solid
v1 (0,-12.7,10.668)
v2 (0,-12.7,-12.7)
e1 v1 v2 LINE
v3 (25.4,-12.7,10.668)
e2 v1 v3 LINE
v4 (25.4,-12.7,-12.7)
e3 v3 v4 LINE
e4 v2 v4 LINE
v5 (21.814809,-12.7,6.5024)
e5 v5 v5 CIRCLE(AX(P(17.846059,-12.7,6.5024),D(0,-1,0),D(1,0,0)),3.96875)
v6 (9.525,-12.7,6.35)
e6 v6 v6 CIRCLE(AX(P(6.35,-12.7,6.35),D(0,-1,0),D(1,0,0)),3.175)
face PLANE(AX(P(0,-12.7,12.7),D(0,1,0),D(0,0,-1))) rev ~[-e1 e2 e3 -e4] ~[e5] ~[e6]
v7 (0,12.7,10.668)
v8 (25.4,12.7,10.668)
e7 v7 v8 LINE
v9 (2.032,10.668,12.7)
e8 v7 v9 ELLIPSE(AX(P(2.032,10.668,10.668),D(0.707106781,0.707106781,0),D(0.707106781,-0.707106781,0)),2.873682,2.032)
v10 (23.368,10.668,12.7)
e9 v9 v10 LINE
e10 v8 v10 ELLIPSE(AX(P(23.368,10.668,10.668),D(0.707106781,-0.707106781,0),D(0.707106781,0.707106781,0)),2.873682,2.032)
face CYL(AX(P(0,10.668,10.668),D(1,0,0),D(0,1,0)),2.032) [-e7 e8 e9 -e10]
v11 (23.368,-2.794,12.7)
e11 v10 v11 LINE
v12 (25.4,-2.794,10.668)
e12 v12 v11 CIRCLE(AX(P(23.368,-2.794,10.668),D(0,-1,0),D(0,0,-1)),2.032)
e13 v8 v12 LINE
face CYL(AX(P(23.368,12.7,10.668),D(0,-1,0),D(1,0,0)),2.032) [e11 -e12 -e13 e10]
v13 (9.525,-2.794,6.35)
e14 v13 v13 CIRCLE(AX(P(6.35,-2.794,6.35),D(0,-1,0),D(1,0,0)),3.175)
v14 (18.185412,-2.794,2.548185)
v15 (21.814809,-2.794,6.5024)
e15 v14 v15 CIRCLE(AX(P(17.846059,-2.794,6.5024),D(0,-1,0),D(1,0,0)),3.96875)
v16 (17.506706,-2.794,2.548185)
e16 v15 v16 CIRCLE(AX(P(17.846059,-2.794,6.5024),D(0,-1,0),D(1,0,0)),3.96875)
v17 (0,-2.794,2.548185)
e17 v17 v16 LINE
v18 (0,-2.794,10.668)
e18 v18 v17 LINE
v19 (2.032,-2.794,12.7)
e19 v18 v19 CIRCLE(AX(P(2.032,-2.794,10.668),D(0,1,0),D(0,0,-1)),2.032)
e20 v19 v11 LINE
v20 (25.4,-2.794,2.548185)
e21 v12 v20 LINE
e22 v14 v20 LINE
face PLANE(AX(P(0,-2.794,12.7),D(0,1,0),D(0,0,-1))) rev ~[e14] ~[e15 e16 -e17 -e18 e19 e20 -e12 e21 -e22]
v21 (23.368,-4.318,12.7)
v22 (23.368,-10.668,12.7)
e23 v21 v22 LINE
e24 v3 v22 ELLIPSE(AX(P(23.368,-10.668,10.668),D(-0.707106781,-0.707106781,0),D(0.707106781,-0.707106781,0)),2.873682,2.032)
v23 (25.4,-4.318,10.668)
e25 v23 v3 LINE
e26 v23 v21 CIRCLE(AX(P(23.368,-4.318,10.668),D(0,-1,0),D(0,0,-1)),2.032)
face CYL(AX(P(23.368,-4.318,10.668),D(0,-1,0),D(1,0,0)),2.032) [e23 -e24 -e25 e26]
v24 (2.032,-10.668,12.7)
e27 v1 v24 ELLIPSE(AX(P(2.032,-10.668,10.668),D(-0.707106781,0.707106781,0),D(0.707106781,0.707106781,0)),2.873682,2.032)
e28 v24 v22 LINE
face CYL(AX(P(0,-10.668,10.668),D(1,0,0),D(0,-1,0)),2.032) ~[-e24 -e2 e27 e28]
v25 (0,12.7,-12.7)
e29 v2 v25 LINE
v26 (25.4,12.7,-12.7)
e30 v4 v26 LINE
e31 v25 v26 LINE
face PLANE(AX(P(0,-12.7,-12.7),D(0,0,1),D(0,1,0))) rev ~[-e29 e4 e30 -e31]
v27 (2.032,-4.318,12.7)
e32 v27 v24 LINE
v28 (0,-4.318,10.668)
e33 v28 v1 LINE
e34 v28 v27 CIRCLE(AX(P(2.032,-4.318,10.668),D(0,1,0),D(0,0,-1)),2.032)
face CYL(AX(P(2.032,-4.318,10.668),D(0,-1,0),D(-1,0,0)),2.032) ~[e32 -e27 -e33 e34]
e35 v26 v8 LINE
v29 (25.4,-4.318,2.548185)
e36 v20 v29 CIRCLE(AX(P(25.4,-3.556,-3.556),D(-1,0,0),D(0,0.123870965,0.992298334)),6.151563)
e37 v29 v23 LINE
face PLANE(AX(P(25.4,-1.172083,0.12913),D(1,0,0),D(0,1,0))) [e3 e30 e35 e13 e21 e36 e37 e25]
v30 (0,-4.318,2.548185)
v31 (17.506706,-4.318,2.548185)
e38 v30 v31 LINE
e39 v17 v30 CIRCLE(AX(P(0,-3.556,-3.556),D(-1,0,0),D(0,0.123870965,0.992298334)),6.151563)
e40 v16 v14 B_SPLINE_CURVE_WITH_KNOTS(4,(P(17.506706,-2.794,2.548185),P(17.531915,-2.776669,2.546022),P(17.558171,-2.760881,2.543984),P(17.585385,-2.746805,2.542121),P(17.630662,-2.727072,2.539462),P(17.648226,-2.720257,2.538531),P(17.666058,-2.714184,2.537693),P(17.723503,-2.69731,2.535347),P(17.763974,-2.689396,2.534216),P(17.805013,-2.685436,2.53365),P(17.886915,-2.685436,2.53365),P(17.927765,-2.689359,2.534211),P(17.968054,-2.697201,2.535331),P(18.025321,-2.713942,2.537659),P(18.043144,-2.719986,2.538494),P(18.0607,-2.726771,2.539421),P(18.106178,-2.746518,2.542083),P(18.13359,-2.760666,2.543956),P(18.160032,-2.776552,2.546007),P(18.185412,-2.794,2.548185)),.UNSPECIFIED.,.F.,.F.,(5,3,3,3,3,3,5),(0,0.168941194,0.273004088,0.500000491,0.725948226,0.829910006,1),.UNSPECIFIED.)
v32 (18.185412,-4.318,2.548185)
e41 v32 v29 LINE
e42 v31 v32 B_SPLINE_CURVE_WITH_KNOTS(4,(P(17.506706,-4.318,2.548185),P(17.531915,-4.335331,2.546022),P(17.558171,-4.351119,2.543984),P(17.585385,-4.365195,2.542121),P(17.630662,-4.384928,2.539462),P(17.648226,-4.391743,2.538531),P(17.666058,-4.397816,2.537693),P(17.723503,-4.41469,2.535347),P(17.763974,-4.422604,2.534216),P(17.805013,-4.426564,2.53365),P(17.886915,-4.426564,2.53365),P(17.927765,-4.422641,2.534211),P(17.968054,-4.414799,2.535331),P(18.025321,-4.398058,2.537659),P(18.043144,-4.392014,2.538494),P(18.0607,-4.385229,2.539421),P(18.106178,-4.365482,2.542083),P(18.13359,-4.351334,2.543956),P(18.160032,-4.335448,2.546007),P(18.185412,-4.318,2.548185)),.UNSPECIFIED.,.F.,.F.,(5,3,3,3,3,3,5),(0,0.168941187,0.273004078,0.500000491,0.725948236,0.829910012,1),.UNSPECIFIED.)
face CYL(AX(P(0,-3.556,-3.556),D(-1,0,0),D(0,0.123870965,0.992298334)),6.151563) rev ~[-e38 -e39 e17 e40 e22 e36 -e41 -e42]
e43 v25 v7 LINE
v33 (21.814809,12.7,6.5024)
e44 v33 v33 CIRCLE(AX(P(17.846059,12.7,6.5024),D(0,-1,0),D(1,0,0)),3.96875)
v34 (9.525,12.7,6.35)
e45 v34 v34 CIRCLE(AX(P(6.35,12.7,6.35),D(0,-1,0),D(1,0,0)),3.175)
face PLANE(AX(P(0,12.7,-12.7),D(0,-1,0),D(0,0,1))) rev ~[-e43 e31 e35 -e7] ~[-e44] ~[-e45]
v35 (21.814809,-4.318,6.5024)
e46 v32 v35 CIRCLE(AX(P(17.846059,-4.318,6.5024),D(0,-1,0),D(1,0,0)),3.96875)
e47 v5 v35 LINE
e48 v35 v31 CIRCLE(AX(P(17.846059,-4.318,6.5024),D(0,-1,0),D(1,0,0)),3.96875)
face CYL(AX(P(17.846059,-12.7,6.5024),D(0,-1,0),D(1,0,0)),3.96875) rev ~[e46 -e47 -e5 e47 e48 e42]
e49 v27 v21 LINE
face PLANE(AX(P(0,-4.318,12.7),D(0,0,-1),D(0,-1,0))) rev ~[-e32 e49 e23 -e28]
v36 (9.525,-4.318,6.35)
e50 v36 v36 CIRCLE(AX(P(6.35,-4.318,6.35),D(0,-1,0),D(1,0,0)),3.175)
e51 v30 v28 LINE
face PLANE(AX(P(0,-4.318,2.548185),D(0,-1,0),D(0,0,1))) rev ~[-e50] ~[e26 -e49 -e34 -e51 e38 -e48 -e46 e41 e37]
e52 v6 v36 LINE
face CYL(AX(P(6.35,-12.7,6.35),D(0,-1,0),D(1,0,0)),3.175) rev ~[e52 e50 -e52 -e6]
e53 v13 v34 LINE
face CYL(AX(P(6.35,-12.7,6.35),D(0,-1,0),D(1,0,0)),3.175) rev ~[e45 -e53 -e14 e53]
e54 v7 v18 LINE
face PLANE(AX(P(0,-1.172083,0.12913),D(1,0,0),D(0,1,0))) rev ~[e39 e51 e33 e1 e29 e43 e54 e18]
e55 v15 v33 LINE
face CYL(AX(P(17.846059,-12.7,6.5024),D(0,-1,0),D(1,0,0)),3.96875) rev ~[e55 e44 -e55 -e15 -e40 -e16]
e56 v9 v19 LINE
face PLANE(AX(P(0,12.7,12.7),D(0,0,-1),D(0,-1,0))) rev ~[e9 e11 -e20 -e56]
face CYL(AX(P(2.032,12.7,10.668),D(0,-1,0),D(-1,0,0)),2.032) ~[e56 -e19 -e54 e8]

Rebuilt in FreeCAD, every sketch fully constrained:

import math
import FreeCAD as App
import Part
import Sketcher
Q = App.Units.Quantity


def edges_at(feature, points):
    """Names of the edges that pass closest to the given points."""
    edges = feature.Shape.Edges
    near = lambda p: min(range(len(edges)), key=lambda i: edges[i].distToShape(Part.Vertex(*p))[0])
    return sorted({f"Edge{near(p) + 1}" for p in points})

doc = App.newDocument("Part")
params = doc.addObject("Spreadsheet::Sheet", "Params")
for row, (alias, value) in enumerate([
    ("sketch1_width", "1 in"),
    ("sketch1_width2", "0.61 in"),
    ("sketch1_width3", "0.33 in"),
    ("pad1_length", "1 in"),
    ("sketch2_diameter", "0.25 in"),
    ("sketch2_diameter2", "0.3125 in"),
    ("fillet_radius", "0.08 in"),
], start=1):
    params.set(f"A{row}", alias)
    params.set(f"B{row}", "=" + value)
    params.setAlias(f"B{row}", alias)

body = doc.addObject("PartDesign::Body", "Body")

# Sketch on YZ plane
sketch1 = body.newObject("Sketcher::SketchObject", "Sketch")
sketch1.AttachmentSupport = (doc.getObject("YZ_Plane"), [""])
sketch1.MapMode = "FlatFace"
sketch1.addGeometry(Part.LineSegment(App.Vector(12.7, -12.7, 0), App.Vector(12.7, 12.7, 0)), False)
sketch1.addGeometry(Part.LineSegment(App.Vector(12.7, 12.7, 0), App.Vector(-2.8, 12.7, 0)), False)
sketch1.addGeometry(Part.LineSegment(App.Vector(-2.8, 12.7, 0), App.Vector(-2.8, 2.5, 0)), False)
sketch1.addGeometry(Part.ArcOfCircle(Part.Circle(App.Vector(-3.6, -3.6, 0), App.Vector(0, 0, 1), 6.2), math.radians(97), math.radians(443)), False)
sketch1.addGeometry(Part.LineSegment(App.Vector(-4.3, 2.5, 0), App.Vector(-4.3, 12.7, 0)), False)
sketch1.addGeometry(Part.LineSegment(App.Vector(-4.3, 12.7, 0), App.Vector(-12.7, 12.7, 0)), False)
sketch1.addGeometry(Part.LineSegment(App.Vector(-12.7, 12.7, 0), App.Vector(-12.7, -12.7, 0)), False)
sketch1.addGeometry(Part.LineSegment(App.Vector(-12.7, -12.7, 0), App.Vector(12.7, -12.7, 0)), False)
sketch1.addConstraint(Sketcher.Constraint("Coincident", 0, 2, 1, 1))
sketch1.addConstraint(Sketcher.Constraint("Coincident", 1, 2, 2, 1))
sketch1.addConstraint(Sketcher.Constraint("Coincident", 2, 2, 3, 2))
sketch1.addConstraint(Sketcher.Constraint("Coincident", 3, 1, 4, 1))
sketch1.addConstraint(Sketcher.Constraint("Coincident", 4, 2, 5, 1))
sketch1.addConstraint(Sketcher.Constraint("Coincident", 5, 2, 6, 1))
sketch1.addConstraint(Sketcher.Constraint("Coincident", 6, 2, 7, 1))
sketch1.addConstraint(Sketcher.Constraint("Coincident", 7, 2, 0, 1))
sketch1.addConstraint(Sketcher.Constraint("Vertical", 0))
sketch1.addConstraint(Sketcher.Constraint("Horizontal", 1))
sketch1.addConstraint(Sketcher.Constraint("Vertical", 2))
sketch1.addConstraint(Sketcher.Constraint("Vertical", 4))
sketch1.addConstraint(Sketcher.Constraint("Horizontal", 5))
sketch1.addConstraint(Sketcher.Constraint("Vertical", 6))
sketch1.addConstraint(Sketcher.Constraint("Horizontal", 7))
sketch1.addConstraint(Sketcher.Constraint("Symmetric", 0, 2, 6, 2, -1, 1))
sketch1.addConstraint(Sketcher.Constraint("Horizontal", 2, 2, 3, 1))
sketch1.addConstraint(Sketcher.Constraint("Horizontal", 1, 2, 4, 2))
sketch1.addConstraint(Sketcher.Constraint("Equal", 7, 0))
sketch1.addConstraint(Sketcher.Constraint("DistanceX", 7, 1, 7, 2, Q("1 in")))
sketch1.addConstraint(Sketcher.Constraint("DistanceX", 1, 2, 1, 1, Q("0.61 in")))
sketch1.addConstraint(Sketcher.Constraint("DistanceX", 5, 2, 5, 1, Q("0.33 in")))
sketch1.addConstraint(Sketcher.Constraint("DistanceY", 3, 3, -1, 1, Q("0.14 in")))
sketch1.addConstraint(Sketcher.Constraint("Radius", 3, 6.151563))
sketch1.setExpression("Constraints[19]", "Params.sketch1_width")
sketch1.setExpression("Constraints[20]", "Params.sketch1_width2")
sketch1.setExpression("Constraints[21]", "Params.sketch1_width3")
pad1 = body.newObject("PartDesign::Pad", "Pad")
pad1.Profile = sketch1
pad1.setExpression("Length", "Params.pad1_length")

# Sketch on XZ plane
sketch2 = body.newObject("Sketcher::SketchObject", "Sketch001")
sketch2.AttachmentSupport = (doc.getObject("XZ_Plane"), [""])
sketch2.MapMode = "FlatFace"
sketch2.AttachmentOffset = App.Placement(App.Vector(0, 0, 0.5 * 25.4), App.Rotation())
sketch2.addGeometry(Part.Circle(App.Vector(6.3, 6.3, 0), App.Vector(0, 0, 1), 3.2), False)
sketch2.addGeometry(Part.Circle(App.Vector(17.8, 6.5, 0), App.Vector(0, 0, 1), 4), False)
sketch2.addConstraint(Sketcher.Constraint("Diameter", 0, Q("0.25 in")))
sketch2.addConstraint(Sketcher.Constraint("Diameter", 1, Q("0.3125 in")))
sketch2.addConstraint(Sketcher.Constraint("DistanceX", -1, 1, 0, 3, Q("0.25 in")))
sketch2.addConstraint(Sketcher.Constraint("DistanceY", -1, 1, 0, 3, Q("0.25 in")))
sketch2.addConstraint(Sketcher.Constraint("DistanceY", -1, 1, 1, 3, Q("0.256 in")))
sketch2.addConstraint(Sketcher.Constraint("DistanceX", -1, 1, 1, 3, 17.846059))
sketch2.setExpression("Constraints[0]", "Params.sketch2_diameter")
sketch2.setExpression("Constraints[1]", "Params.sketch2_diameter2")
pocket1 = body.newObject("PartDesign::Pocket", "Pocket")
pocket1.Profile = sketch2
pocket1.Type = "ThroughAll"
doc.recompute()

fillet = body.newObject("PartDesign::Fillet", "Fillet")
fillet.Base = (pocket1, edges_at(pocket1, [
    (0, 4.953, 12.7),
    (12.7, 12.7, 12.7),
    (25.4, 4.953, 12.7),
    (25.4, -8.509, 12.7),
    (12.7, -12.7, 12.7),
    (0, -8.509, 12.7),
]))
fillet.setExpression("Radius", "Params.fillet_radius")

doc.recompute()
